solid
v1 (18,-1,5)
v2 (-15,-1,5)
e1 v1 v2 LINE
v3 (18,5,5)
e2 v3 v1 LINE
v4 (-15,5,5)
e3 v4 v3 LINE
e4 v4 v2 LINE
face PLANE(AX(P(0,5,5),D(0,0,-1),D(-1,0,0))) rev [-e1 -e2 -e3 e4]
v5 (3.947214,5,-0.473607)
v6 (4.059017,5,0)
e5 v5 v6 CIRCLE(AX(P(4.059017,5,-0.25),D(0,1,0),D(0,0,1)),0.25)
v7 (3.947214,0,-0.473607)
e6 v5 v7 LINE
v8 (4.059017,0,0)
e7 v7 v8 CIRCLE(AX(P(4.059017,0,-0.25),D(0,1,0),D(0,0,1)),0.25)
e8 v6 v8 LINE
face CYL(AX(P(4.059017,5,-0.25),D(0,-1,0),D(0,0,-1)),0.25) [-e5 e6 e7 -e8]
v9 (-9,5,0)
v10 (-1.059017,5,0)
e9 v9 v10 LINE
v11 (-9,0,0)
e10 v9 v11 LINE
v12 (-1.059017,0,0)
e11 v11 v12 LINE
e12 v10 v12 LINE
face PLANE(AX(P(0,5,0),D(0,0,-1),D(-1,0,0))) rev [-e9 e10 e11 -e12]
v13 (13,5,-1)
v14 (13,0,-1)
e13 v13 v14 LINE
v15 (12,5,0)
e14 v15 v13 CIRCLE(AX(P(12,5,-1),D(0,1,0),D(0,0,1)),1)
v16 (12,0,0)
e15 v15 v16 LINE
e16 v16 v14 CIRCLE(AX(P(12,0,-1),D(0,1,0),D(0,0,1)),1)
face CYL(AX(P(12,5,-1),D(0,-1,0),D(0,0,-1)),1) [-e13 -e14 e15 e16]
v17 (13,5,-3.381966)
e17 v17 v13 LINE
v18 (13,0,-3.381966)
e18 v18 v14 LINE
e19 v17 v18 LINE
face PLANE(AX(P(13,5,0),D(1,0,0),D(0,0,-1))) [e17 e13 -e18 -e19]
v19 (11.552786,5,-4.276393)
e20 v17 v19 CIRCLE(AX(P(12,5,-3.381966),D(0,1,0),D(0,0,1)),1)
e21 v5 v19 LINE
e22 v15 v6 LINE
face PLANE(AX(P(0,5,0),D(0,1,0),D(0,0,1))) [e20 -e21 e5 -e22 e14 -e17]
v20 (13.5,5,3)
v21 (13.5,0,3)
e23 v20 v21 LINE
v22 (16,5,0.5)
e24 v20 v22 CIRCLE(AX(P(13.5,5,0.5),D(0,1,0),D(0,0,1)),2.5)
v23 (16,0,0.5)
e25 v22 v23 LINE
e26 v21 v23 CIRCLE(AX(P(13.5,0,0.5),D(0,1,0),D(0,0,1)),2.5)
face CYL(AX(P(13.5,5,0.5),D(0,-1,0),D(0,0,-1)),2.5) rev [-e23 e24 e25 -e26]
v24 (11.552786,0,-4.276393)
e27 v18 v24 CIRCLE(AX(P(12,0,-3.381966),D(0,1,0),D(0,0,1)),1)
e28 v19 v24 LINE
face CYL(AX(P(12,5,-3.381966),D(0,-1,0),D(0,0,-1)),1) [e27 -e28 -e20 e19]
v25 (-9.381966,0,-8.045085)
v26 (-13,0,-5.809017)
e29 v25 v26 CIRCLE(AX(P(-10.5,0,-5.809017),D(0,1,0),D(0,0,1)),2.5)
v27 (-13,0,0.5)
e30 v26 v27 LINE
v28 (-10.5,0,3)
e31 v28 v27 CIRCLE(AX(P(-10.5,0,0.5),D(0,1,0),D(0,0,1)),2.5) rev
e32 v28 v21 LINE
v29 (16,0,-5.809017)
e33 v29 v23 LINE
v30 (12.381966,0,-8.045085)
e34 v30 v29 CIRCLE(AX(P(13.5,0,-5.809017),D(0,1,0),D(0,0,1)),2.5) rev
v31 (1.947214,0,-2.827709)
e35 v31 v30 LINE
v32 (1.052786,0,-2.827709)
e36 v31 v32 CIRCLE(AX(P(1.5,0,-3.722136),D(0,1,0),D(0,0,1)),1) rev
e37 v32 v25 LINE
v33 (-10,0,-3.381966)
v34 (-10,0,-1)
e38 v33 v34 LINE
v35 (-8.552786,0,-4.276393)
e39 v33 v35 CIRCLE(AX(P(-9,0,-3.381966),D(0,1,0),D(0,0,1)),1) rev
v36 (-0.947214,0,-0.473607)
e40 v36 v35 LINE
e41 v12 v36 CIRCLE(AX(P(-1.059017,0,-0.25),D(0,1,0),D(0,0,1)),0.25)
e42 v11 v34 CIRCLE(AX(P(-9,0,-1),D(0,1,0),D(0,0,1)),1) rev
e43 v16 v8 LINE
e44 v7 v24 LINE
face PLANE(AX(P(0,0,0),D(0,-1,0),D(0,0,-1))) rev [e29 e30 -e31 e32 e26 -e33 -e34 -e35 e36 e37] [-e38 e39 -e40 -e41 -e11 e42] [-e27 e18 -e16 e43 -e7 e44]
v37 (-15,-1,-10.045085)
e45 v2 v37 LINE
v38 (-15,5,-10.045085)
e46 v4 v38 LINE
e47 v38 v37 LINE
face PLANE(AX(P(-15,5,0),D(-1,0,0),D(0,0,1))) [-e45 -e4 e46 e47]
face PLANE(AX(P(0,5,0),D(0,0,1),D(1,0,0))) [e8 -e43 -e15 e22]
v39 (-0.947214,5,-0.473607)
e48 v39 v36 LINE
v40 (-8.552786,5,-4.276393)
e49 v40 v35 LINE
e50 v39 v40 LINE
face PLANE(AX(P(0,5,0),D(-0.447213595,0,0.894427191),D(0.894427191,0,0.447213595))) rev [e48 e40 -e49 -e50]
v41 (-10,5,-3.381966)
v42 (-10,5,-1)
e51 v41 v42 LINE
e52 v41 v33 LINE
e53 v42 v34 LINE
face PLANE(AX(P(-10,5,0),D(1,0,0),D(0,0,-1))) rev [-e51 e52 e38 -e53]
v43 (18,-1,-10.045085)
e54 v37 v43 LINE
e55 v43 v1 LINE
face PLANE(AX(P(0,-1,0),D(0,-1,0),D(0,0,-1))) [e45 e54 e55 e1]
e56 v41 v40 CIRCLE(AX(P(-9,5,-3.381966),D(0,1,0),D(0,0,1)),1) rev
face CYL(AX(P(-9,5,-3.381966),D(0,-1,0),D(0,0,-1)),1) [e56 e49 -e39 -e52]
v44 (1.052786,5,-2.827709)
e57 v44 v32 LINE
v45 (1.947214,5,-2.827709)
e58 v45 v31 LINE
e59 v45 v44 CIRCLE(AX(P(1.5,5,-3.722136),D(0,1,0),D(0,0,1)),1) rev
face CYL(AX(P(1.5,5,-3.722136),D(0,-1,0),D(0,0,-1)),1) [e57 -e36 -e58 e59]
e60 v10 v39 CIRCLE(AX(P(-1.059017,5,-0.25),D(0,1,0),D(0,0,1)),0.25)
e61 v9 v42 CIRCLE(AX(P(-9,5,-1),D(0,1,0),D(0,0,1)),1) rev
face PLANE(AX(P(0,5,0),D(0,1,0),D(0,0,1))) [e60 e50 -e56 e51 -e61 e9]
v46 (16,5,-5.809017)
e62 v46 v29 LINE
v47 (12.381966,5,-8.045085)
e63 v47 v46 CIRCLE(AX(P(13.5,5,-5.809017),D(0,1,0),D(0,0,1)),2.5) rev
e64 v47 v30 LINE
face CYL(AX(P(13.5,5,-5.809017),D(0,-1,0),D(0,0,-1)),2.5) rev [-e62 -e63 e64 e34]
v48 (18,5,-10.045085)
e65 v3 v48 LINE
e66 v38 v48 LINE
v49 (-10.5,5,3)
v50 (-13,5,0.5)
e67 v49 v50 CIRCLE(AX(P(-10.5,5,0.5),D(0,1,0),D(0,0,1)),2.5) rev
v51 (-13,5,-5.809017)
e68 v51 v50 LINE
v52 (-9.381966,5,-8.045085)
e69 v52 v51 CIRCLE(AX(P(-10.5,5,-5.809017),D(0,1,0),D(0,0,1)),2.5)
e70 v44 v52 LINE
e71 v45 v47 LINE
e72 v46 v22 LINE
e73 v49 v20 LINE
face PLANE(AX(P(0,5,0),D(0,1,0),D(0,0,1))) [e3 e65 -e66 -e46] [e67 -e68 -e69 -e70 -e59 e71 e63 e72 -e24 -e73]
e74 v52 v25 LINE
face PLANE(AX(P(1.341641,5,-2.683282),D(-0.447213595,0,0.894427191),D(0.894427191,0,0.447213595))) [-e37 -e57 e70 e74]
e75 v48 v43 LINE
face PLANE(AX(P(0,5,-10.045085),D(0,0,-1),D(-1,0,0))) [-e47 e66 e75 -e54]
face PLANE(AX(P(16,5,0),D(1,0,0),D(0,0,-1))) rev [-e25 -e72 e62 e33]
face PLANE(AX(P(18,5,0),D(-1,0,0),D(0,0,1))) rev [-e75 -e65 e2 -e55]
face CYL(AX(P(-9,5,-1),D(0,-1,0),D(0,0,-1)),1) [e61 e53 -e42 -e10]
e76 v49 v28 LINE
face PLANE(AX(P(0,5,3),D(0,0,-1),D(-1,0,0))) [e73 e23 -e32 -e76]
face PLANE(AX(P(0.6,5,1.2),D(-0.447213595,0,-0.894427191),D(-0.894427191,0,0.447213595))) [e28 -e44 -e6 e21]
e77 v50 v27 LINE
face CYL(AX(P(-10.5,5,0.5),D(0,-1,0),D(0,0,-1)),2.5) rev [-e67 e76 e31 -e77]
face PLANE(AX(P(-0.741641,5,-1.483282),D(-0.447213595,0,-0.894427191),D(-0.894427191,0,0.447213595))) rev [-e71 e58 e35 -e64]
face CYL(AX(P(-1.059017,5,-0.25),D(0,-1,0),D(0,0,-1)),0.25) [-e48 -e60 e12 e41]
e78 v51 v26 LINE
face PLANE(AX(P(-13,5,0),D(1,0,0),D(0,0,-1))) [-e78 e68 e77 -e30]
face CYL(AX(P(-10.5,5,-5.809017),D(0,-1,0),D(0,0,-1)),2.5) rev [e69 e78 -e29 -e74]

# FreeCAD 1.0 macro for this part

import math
import FreeCAD as App
import Part
import Sketcher
Q = App.Units.Quantity


def add_polygon(sketch, points):
    """Adds a closed chain of lines whose ends are joined by coincident constraints."""
    first, n = sketch.GeometryCount, len(points)
    for a, b in zip(points, points[1:] + points[:1]):
        sketch.addGeometry(Part.LineSegment(App.Vector(*a, 0), App.Vector(*b, 0)), False)
    for i in range(n):
        sketch.addConstraint(Sketcher.Constraint("Coincident", first + i, 2, first + (i + 1) % n, 1))

doc = App.newDocument("Part")
body = doc.addObject("PartDesign::Body", "Body")

sketch1 = body.newObject("Sketcher::SketchObject", "Sketch")
sketch1.AttachmentSupport = (doc.getObject("XZ_Plane"), [""])
sketch1.MapMode = "FlatFace"
sketch1.addGeometry([
    Part.LineSegment(App.Vector(-0.95, -0.47, 0), App.Vector(-8.55, -4.28, 0)),
    Part.ArcOfCircle(Part.Circle(App.Vector(-9, -3.38, 0), App.Vector(0, 0, 1), 1), math.radians(180), math.radians(297)),
    Part.LineSegment(App.Vector(-10, -3.38, 0), App.Vector(-10, -1, 0)),
    Part.ArcOfCircle(Part.Circle(App.Vector(-9, -1, 0), App.Vector(0, 0, 1), 1), math.radians(90), math.radians(180)),
    Part.LineSegment(App.Vector(-9, 0, 0), App.Vector(-1.06, 0, 0)),
    Part.ArcOfCircle(Part.Circle(App.Vector(-1.06, -0.25, 0), App.Vector(0, 0, 1), 0.25), math.radians(-63), math.radians(90)),
], False)
sketch1.addConstraint([
    Sketcher.Constraint("Tangent", 0, 2, 1, 2),
    Sketcher.Constraint("Tangent", 1, 1, 2, 1),
    Sketcher.Constraint("Tangent", 2, 2, 3, 2),
    Sketcher.Constraint("Tangent", 3, 1, 4, 1),
    Sketcher.Constraint("Tangent", 4, 2, 5, 2),
    Sketcher.Constraint("Tangent", 5, 1, 0, 1),
    Sketcher.Constraint("Vertical", 2),
    Sketcher.Constraint("Horizontal", 4),
    Sketcher.Constraint("Equal", 1, 3),
    Sketcher.Constraint("PointOnObject", 3, 1, -1),
    Sketcher.Constraint("Radius", 1, Q("1 mm")),
    Sketcher.Constraint("Radius", 5, Q("0.25 mm")),
    Sketcher.Constraint("DistanceX", 1, 3, -1, 1, Q("9 mm")),
    Sketcher.Constraint("Distance", 0, Q("8.503289 mm")),
    Sketcher.Constraint("DistanceX", 4, 1, 4, 2, Q("7.940983 mm")),
])
pad1 = body.newObject("PartDesign::Pad", "Pad")
pad1.Profile = sketch1
pad1.Length = 5
pad1.Reversed = True
body2 = doc.addObject("PartDesign::Body", "Body001")

sketch2 = body2.newObject("Sketcher::SketchObject", "Sketch001")
sketch2.AttachmentSupport = (doc.getObject("XZ_Plane001"), [""])
sketch2.MapMode = "FlatFace"
sketch2.addGeometry([
    Part.LineSegment(App.Vector(4.06, 0, 0), App.Vector(12, 0, 0)),
    Part.ArcOfCircle(Part.Circle(App.Vector(12, -1, 0), App.Vector(0, 0, 1), 1), math.radians(0), math.radians(90)),
    Part.LineSegment(App.Vector(13, -1, 0), App.Vector(13, -3.38, 0)),
    Part.ArcOfCircle(Part.Circle(App.Vector(12, -3.38, 0), App.Vector(0, 0, 1), 1), math.radians(-117), math.radians(0)),
    Part.LineSegment(App.Vector(11.55, -4.28, 0), App.Vector(3.95, -0.47, 0)),
    Part.ArcOfCircle(Part.Circle(App.Vector(4.06, -0.25, 0), App.Vector(0, 0, 1), 0.25), math.radians(90), math.radians(243)),
], False)
sketch2.addConstraint([
    Sketcher.Constraint("Tangent", 0, 2, 1, 2),
    Sketcher.Constraint("Tangent", 1, 1, 2, 1),
    Sketcher.Constraint("Tangent", 2, 2, 3, 2),
    Sketcher.Constraint("Tangent", 3, 1, 4, 1),
    Sketcher.Constraint("Tangent", 4, 2, 5, 2),
    Sketcher.Constraint("Tangent", 5, 1, 0, 1),
    Sketcher.Constraint("Horizontal", 0),
    Sketcher.Constraint("Vertical", 2),
    Sketcher.Constraint("Equal", 1, 3),
    Sketcher.Constraint("PointOnObject", 0, 2, -1),
    Sketcher.Constraint("Radius", 1, Q("1 mm")),
    Sketcher.Constraint("Radius", 5, Q("0.25 mm")),
    Sketcher.Constraint("DistanceX", -1, 1, 1, 3, Q("12 mm")),
    Sketcher.Constraint("Distance", 4, Q("8.503289 mm")),
    Sketcher.Constraint("DistanceX", 0, 1, 0, 2, Q("7.940983 mm")),
])
pad2 = body2.newObject("PartDesign::Pad", "Pad001")
pad2.Profile = sketch2
pad2.Length = 5
pad2.Reversed = True
body3 = doc.addObject("PartDesign::Body", "Body002")

sketch3 = body3.newObject("Sketcher::SketchObject", "Sketch002")
sketch3.AttachmentSupport = (doc.getObject("XZ_Plane002"), [""])
sketch3.MapMode = "FlatFace"
add_polygon(sketch3, [(-15, -10), (-15, 5), (18, 5), (18, -10)])
sketch3.addGeometry(Part.LineSegment(App.Vector(-9.4, -8, 0), App.Vector(1.1, -2.8, 0)), False)
sketch3.addGeometry(Part.ArcOfCircle(Part.Circle(App.Vector(1.5, -3.7, 0), App.Vector(0, 0, 1), 1), math.radians(63), math.radians(117)), False)
sketch3.addGeometry(Part.LineSegment(App.Vector(1.9, -2.8, 0), App.Vector(12.4, -8, 0)), False)
sketch3.addGeometry(Part.ArcOfCircle(Part.Circle(App.Vector(13.5, -5.8, 0), App.Vector(0, 0, 1), 2.5), math.radians(-117), math.radians(0)), False)
sketch3.addGeometry(Part.LineSegment(App.Vector(16, -5.8, 0), App.Vector(16, 0.5, 0)), False)
sketch3.addGeometry(Part.ArcOfCircle(Part.Circle(App.Vector(13.5, 0.5, 0), App.Vector(0, 0, 1), 2.5), math.radians(0), math.radians(90)), False)
sketch3.addGeometry(Part.LineSegment(App.Vector(13.5, 3, 0), App.Vector(-10.5, 3, 0)), False)
sketch3.addGeometry(Part.ArcOfCircle(Part.Circle(App.Vector(-10.5, 0.5, 0), App.Vector(0, 0, 1), 2.5), math.radians(90), math.radians(180)), False)
sketch3.addGeometry(Part.LineSegment(App.Vector(-13, 0.5, 0), App.Vector(-13, -5.8, 0)), False)
sketch3.addGeometry(Part.ArcOfCircle(Part.Circle(App.Vector(-10.5, -5.8, 0), App.Vector(0, 0, 1), 2.5), math.radians(180), math.radians(297)), False)
sketch3.addConstraint([
    Sketcher.Constraint("Tangent", 4, 2, 5, 2),
    Sketcher.Constraint("Tangent", 5, 1, 6, 1),
    Sketcher.Constraint("Tangent", 6, 2, 7, 1),
    Sketcher.Constraint("Tangent", 7, 2, 8, 1),
    Sketcher.Constraint("Tangent", 8, 2, 9, 1),
    Sketcher.Constraint("Tangent", 9, 2, 10, 1),
    Sketcher.Constraint("Tangent", 10, 2, 11, 1),
    Sketcher.Constraint("Tangent", 11, 2, 12, 1),
    Sketcher.Constraint("Tangent", 12, 2, 13, 1),
    Sketcher.Constraint("Tangent", 13, 2, 4, 1),
    Sketcher.Constraint("Vertical", 0),
    Sketcher.Constraint("Horizontal", 1),
    Sketcher.Constraint("Vertical", 2),
    Sketcher.Constraint("Horizontal", 3),
    Sketcher.Constraint("Vertical", 8),
    Sketcher.Constraint("Horizontal", 10),
    Sketcher.Constraint("Vertical", 12),
    Sketcher.Constraint("Equal", 7, 9),
    Sketcher.Constraint("Equal", 9, 11),
    Sketcher.Constraint("Equal", 11, 13),
    Sketcher.Constraint("Horizontal", 7, 3, 13, 3),
    Sketcher.Constraint("Horizontal", 4, 2, 5, 1),
    Sketcher.Constraint("Radius", 5, Q("1 mm")),
    Sketcher.Constraint("Radius", 7, Q("2.5 mm")),
    Sketcher.Constraint("DistanceX", 1, 1, 1, 2, Q("33 mm")),
    Sketcher.Constraint("DistanceX", 10, 2, 10, 1, Q("24 mm")),
    Sketcher.Constraint("DistanceX", 0, 2, -1, 1, Q("15 mm")),
    Sketcher.Constraint("DistanceY", -1, 1, 0, 2, Q("5 mm")),
    Sketcher.Constraint("DistanceX", -1, 1, 7, 2, Q("16 mm")),
    Sketcher.Constraint("DistanceY", -1, 1, 9, 2, Q("3 mm")),
    Sketcher.Constraint("DistanceY", 2, 2, 6, 2, Q("2 mm")),
    Sketcher.Constraint("DistanceY", 0, 1, 0, 2, Q("15.045085 mm")),
    Sketcher.Constraint("DistanceY", 8, 1, 8, 2, Q("6.309017 mm")),
])
pad3 = body3.newObject("PartDesign::Pad", "Pad002")
pad3.Profile = sketch3
pad3.Length = 5
pad3.Reversed = True
body.AllowCompound = True
doc.recompute()

boolean = body.newObject("PartDesign::Boolean", "Boolean")
boolean.Type = "Fuse"
boolean.addObjects([body2])
doc.recompute()

boolean2 = body.newObject("PartDesign::Boolean", "Boolean001")
boolean2.Type = "Fuse"
boolean2.addObjects([body3])

sketch4 = body.newObject("Sketcher::SketchObject", "Sketch003")
sketch4.AttachmentSupport = (doc.getObject("XZ_Plane"), [""])
sketch4.MapMode = "FlatFace"
add_polygon(sketch4, [(-15, 5), (-15, -10), (18, -10), (18, 5)])
sketch4.addConstraint([
    Sketcher.Constraint("Vertical", 0),
    Sketcher.Constraint("Horizontal", 1),
    Sketcher.Constraint("Vertical", 2),
    Sketcher.Constraint("Horizontal", 3),
    Sketcher.Constraint("DistanceX", 1, 1, 1, 2, Q("33 mm")),
    Sketcher.Constraint("DistanceX", 0, 2, -1, 1, Q("15 mm")),
    Sketcher.Constraint("DistanceY", -1, 1, 2, 2, Q("5 mm")),
    Sketcher.Constraint("DistanceY", 0, 2, 0, 1, Q("15.045085 mm")),
])
pad4 = body.newObject("PartDesign::Pad", "Pad003")
pad4.Profile = sketch4
pad4.Length = 1

doc.recompute()
